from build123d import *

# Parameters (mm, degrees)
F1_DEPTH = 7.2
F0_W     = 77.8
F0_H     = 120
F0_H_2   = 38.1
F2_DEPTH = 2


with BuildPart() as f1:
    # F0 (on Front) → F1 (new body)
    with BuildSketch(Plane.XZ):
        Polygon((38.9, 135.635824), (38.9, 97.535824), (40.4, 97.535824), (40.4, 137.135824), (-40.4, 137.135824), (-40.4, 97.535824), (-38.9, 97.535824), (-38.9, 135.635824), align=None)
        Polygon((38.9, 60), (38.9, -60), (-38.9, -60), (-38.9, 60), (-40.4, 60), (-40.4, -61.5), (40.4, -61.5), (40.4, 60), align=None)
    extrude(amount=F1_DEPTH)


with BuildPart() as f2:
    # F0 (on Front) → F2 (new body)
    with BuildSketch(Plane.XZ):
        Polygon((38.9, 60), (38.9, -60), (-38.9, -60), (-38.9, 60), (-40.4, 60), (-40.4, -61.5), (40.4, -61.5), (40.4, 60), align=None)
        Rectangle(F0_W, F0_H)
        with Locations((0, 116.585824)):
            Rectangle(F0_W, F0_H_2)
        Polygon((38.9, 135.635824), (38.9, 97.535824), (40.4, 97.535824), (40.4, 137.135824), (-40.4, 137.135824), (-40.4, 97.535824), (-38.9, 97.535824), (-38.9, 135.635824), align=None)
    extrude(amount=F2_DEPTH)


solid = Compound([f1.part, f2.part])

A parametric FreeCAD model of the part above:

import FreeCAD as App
import Part
import Sketcher
from FreeCAD import Vector


def add_polygon(sketch, points):
    """Adds a closed chain of lines whose ends are joined by coincident constraints."""
    first, n = sketch.GeometryCount, len(points)
    for a, b in zip(points, points[1:] + points[:1]):
        sketch.addGeometry(Part.LineSegment(App.Vector(*a, 0), App.Vector(*b, 0)), False)
    for i in range(n):
        sketch.addConstraint(Sketcher.Constraint("Coincident", first + i, 2, first + (i + 1) % n, 1))

doc = App.newDocument("Part")
body = doc.addObject("PartDesign::Body", "Body")
body.AllowCompound = True

sketch1 = doc.addObject("Sketcher::SketchObject", "Sketch")
body.addObject(sketch1)
sketch1.AttachmentSupport = (doc.XZ_Plane, [""])
sketch1.MapMode = "FlatFace"
add_polygon(sketch1, [(38.9, 135.635824), (38.9, 97.535824), (40.4, 97.535824), (40.4, 137.135824), (-40.4, 137.135824), (-40.4, 97.535824), (-38.9, 97.535824), (-38.9, 135.635824)])
add_polygon(sketch1, [(38.9, 60), (38.9, -60), (-38.9, -60), (-38.9, 60), (-40.4, 60), (-40.4, -61.5), (40.4, -61.5), (40.4, 60)])
sketch1.addConstraint([
    Sketcher.Constraint("Vertical", 0),
    Sketcher.Constraint("Horizontal", 1),
    Sketcher.Constraint("Vertical", 2),
    Sketcher.Constraint("Horizontal", 3),
    Sketcher.Constraint("Vertical", 4),
    Sketcher.Constraint("Horizontal", 5),
    Sketcher.Constraint("Vertical", 6),
    Sketcher.Constraint("Horizontal", 7),
    Sketcher.Constraint("Vertical", 8),
    Sketcher.Constraint("Horizontal", 9),
    Sketcher.Constraint("Vertical", 10),
    Sketcher.Constraint("Horizontal", 11),
    Sketcher.Constraint("Vertical", 12),
    Sketcher.Constraint("Horizontal", 13),
    Sketcher.Constraint("Vertical", 14),
    Sketcher.Constraint("Horizontal", 15),
    Sketcher.Constraint("Symmetric", 8, 2, 10, 2, -1, 1),
    Sketcher.Constraint("Symmetric", 1, 2, 4, 2, -2),
    Sketcher.Constraint("Symmetric", 11, 2, 14, 2, -2),
    Sketcher.Constraint("Vertical", 7, 2, 8, 2),
    Sketcher.Constraint("Vertical", 6, 2, 9, 2),
    Sketcher.Constraint("Vertical", 4, 2, 11, 2),
    Sketcher.Constraint("DistanceY", 8, 2, 8, 1, 120.0),
    Sketcher.Constraint("DistanceX", 1, 1, 1, 2, 1.5),
    Sketcher.Constraint("DistanceX", 3, 2, 3, 1, 80.8),
    Sketcher.Constraint("DistanceY", 0, 2, 0, 1, 38.1),
    Sketcher.Constraint("DistanceY", 2, 1, 2, 2, 39.6),
    Sketcher.Constraint("DistanceY", 12, 2, 12, 1, 121.5),
    Sketcher.Constraint("DistanceY", -1, 1, 0, 2, 97.535824),
])
pad1 = doc.addObject("PartDesign::Pad", "Pad")
body.addObject(pad1)
pad1.Profile = sketch1
pad1.Length = 7.2
body2 = doc.addObject("PartDesign::Body", "Body001")
body2.AllowCompound = True

sketch2 = doc.addObject("Sketcher::SketchObject", "Sketch001")
body2.addObject(sketch2)
sketch2.AttachmentSupport = (doc.getObject("XZ_Plane001"), [""])
sketch2.MapMode = "FlatFace"
add_polygon(sketch2, [(-40.4, 60), (-40.4, -61.5), (40.4, -61.5), (40.4, 60)])
add_polygon(sketch2, [(40.4, 97.535824), (40.4, 137.135824), (-40.4, 137.135824), (-40.4, 97.535824)])
sketch2.addConstraint([
    Sketcher.Constraint("Vertical", 0),
    Sketcher.Constraint("Horizontal", 1),
    Sketcher.Constraint("Vertical", 2),
    Sketcher.Constraint("Horizontal", 3),
    Sketcher.Constraint("Vertical", 4),
    Sketcher.Constraint("Horizontal", 5),
    Sketcher.Constraint("Vertical", 6),
    Sketcher.Constraint("Horizontal", 7),
    Sketcher.Constraint("Vertical", 2, 2, 4, 2),
    Sketcher.Constraint("Vertical", 3, 2, 5, 2),
    Sketcher.Constraint("DistanceX", 1, 1, 1, 2, 80.8),
    Sketcher.Constraint("DistanceY", 0, 2, 0, 1, 121.5),
    Sketcher.Constraint("DistanceY", 4, 1, 4, 2, 39.6),
    Sketcher.Constraint("DistanceY", -1, 1, 2, 2, 60.0),
    Sketcher.Constraint("DistanceX", 0, 2, -1, 1, 40.4),
    Sketcher.Constraint("DistanceY", -1, 1, 4, 2, 137.135824),
])
pad2 = doc.addObject("PartDesign::Pad", "Pad001")
body2.addObject(pad2)
pad2.Profile = sketch2
pad2.Length = 2

doc.recompute()
